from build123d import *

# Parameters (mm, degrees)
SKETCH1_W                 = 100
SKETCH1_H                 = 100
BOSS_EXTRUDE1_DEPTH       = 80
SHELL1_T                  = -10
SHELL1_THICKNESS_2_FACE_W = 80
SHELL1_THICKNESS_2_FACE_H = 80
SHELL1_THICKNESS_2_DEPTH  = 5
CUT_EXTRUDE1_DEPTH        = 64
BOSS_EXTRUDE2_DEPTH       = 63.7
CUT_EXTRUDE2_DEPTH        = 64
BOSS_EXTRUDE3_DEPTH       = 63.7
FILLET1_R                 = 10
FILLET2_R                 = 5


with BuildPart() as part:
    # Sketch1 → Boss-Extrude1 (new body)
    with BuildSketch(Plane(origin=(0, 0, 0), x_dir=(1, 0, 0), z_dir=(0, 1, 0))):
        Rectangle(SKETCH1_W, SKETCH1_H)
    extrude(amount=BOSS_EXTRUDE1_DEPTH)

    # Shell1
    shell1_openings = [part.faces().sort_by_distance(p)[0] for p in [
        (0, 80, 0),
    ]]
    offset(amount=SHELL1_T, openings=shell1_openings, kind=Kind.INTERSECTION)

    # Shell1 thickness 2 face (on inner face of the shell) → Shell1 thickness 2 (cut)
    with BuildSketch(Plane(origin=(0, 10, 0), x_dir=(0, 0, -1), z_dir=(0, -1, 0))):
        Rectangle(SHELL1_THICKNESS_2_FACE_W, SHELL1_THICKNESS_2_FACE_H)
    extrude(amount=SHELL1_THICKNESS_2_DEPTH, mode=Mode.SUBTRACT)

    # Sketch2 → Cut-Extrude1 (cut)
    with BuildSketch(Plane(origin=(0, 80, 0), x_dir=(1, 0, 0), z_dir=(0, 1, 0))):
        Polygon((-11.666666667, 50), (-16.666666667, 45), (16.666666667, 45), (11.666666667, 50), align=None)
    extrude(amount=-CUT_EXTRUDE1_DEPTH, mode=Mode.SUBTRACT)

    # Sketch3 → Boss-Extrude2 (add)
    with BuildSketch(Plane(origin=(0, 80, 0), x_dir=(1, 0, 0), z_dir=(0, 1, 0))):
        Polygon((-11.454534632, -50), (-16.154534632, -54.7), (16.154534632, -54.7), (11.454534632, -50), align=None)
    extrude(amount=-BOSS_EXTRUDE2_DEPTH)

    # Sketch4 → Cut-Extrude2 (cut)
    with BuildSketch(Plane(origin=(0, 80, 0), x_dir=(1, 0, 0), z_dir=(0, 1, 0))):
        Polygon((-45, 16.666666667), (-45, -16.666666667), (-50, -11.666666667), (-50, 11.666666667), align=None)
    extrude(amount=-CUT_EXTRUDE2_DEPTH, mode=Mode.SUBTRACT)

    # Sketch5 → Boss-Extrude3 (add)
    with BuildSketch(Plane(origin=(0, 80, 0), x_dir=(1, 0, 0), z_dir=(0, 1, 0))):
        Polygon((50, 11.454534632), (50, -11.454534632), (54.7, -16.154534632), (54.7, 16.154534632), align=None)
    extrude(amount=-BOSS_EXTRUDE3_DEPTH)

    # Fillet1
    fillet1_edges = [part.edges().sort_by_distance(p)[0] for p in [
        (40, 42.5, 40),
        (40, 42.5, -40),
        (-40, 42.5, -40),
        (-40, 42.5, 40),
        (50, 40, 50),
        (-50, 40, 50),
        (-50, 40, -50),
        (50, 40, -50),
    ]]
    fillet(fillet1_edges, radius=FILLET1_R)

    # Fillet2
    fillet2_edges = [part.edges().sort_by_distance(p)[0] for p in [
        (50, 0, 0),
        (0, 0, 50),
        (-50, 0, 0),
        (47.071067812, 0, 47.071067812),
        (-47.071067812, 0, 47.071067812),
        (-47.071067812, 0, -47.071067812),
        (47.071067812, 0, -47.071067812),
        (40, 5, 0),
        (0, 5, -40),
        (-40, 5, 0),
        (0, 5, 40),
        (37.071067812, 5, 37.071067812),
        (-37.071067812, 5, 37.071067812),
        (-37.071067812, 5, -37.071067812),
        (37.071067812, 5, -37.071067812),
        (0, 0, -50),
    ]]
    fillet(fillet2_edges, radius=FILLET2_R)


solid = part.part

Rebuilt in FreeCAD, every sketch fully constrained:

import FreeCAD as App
import Part
import Sketcher
Q = App.Units.Quantity


def edges_at(feature, points):
    """Names of the edges that pass closest to the given points."""
    edges = feature.Shape.Edges
    near = lambda p: min(range(len(edges)), key=lambda i: edges[i].distToShape(Part.Vertex(*p))[0])
    return sorted({f"Edge{near(p) + 1}" for p in points})


def faces_at(feature, points):
    """Names of the faces that lie closest to the given points."""
    faces = feature.Shape.Faces
    near = lambda p: min(range(len(faces)), key=lambda i: faces[i].distToShape(Part.Vertex(*p))[0])
    return sorted({f"Face{near(p) + 1}" for p in points})

doc = App.newDocument("Part")
body = doc.addObject("PartDesign::Body", "Body")

# Sketch on XZ plane
sketch1 = body.newObject("Sketcher::SketchObject", "Sketch")
sketch1.AttachmentSupport = (doc.getObject("XZ_Plane"), [""])
sketch1.MapMode = "FlatFace"
sketch1.addGeometry(Part.LineSegment(App.Vector(-50, -50, 0), App.Vector(-50, 50, 0)), False)
sketch1.addGeometry(Part.LineSegment(App.Vector(-50, 50, 0), App.Vector(50, 50, 0)), False)
sketch1.addGeometry(Part.LineSegment(App.Vector(50, 50, 0), App.Vector(50, -50, 0)), False)
sketch1.addGeometry(Part.LineSegment(App.Vector(50, -50, 0), App.Vector(-50, -50, 0)), False)
sketch1.addConstraint(Sketcher.Constraint("Coincident", 0, 2, 1, 1))
sketch1.addConstraint(Sketcher.Constraint("Coincident", 1, 2, 2, 1))
sketch1.addConstraint(Sketcher.Constraint("Coincident", 2, 2, 3, 1))
sketch1.addConstraint(Sketcher.Constraint("Coincident", 3, 2, 0, 1))
sketch1.addConstraint(Sketcher.Constraint("Vertical", 0))
sketch1.addConstraint(Sketcher.Constraint("Horizontal", 1))
sketch1.addConstraint(Sketcher.Constraint("Vertical", 2))
sketch1.addConstraint(Sketcher.Constraint("Horizontal", 3))
sketch1.addConstraint(Sketcher.Constraint("Symmetric", 0, 2, 2, 2, -1, 1))
sketch1.addConstraint(Sketcher.Constraint("Equal", 3, 0))
sketch1.addConstraint(Sketcher.Constraint("DistanceX", 1, 1, 1, 2, Q("100 mm")))
pad1 = body.newObject("PartDesign::Pad", "Pad")
pad1.Profile = sketch1
pad1.Length = 80
pad1.Reversed = True
doc.recompute()

thickness = body.newObject("PartDesign::Thickness", "Thickness")
thickness.Base = (pad1, faces_at(pad1, [(0, 80, 0)]))
thickness.Value = 10
thickness.Reversed = True
thickness.Join = "Intersection"

# Sketch on XZ plane
sketch2 = body.newObject("Sketcher::SketchObject", "Sketch001")
sketch2.AttachmentSupport = (doc.getObject("XZ_Plane"), [""])
sketch2.MapMode = "FlatFace"
sketch2.AttachmentOffset = App.Placement(App.Vector(0, 0, -10), App.Rotation())
sketch2.addGeometry(Part.LineSegment(App.Vector(40, 40, 0), App.Vector(-40, 40, 0)), False)
sketch2.addGeometry(Part.LineSegment(App.Vector(-40, 40, 0), App.Vector(-40, -40, 0)), False)
sketch2.addGeometry(Part.LineSegment(App.Vector(-40, -40, 0), App.Vector(40, -40, 0)), False)
sketch2.addGeometry(Part.LineSegment(App.Vector(40, -40, 0), App.Vector(40, 40, 0)), False)
sketch2.addConstraint(Sketcher.Constraint("Coincident", 0, 2, 1, 1))
sketch2.addConstraint(Sketcher.Constraint("Coincident", 1, 2, 2, 1))
sketch2.addConstraint(Sketcher.Constraint("Coincident", 2, 2, 3, 1))
sketch2.addConstraint(Sketcher.Constraint("Coincident", 3, 2, 0, 1))
sketch2.addConstraint(Sketcher.Constraint("Horizontal", 0))
sketch2.addConstraint(Sketcher.Constraint("Vertical", 1))
sketch2.addConstraint(Sketcher.Constraint("Horizontal", 2))
sketch2.addConstraint(Sketcher.Constraint("Vertical", 3))
sketch2.addConstraint(Sketcher.Constraint("Symmetric", 0, 2, 2, 2, -1, 1))
sketch2.addConstraint(Sketcher.Constraint("Equal", 2, 1))
sketch2.addConstraint(Sketcher.Constraint("DistanceX", 0, 2, 0, 1, Q("80 mm")))
pocket1 = body.newObject("PartDesign::Pocket", "Pocket")
pocket1.Profile = sketch2
pocket1.Length = 5
pocket1.Reversed = True

# Sketch on XZ plane
sketch3 = body.newObject("Sketcher::SketchObject", "Sketch002")
sketch3.AttachmentSupport = (doc.getObject("XZ_Plane"), [""])
sketch3.MapMode = "FlatFace"
sketch3.AttachmentOffset = App.Placement(App.Vector(0, 0, -80), App.Rotation())
sketch3.addGeometry(Part.LineSegment(App.Vector(-12, -50, 0), App.Vector(-17, -45, 0)), False)
sketch3.addGeometry(Part.LineSegment(App.Vector(-17, -45, 0), App.Vector(17, -45, 0)), False)
sketch3.addGeometry(Part.LineSegment(App.Vector(17, -45, 0), App.Vector(12, -50, 0)), False)
sketch3.addGeometry(Part.LineSegment(App.Vector(12, -50, 0), App.Vector(-12, -50, 0)), False)
sketch3.addConstraint(Sketcher.Constraint("Coincident", 0, 2, 1, 1))
sketch3.addConstraint(Sketcher.Constraint("Coincident", 1, 2, 2, 1))
sketch3.addConstraint(Sketcher.Constraint("Coincident", 2, 2, 3, 1))
sketch3.addConstraint(Sketcher.Constraint("Coincident", 3, 2, 0, 1))
sketch3.addConstraint(Sketcher.Constraint("Horizontal", 1))
sketch3.addConstraint(Sketcher.Constraint("Horizontal", 3))
sketch3.addConstraint(Sketcher.Constraint("Perpendicular", 0, 2))
sketch3.addConstraint(Sketcher.Constraint("Equal", 0, 2))
sketch3.addConstraint(Sketcher.Constraint("DistanceY", 0, 2, -1, 1, Q("45 mm")))
sketch3.addConstraint(Sketcher.Constraint("DistanceY", 2, 2, -1, 1, Q("50 mm")))
sketch3.addConstraint(Sketcher.Constraint("DistanceX", 1, 1, 1, 2, Q("33.333333 mm")))
sketch3.addConstraint(Sketcher.Constraint("DistanceX", 0, 2, -1, 1, Q("16.666667 mm")))
pocket2 = body.newObject("PartDesign::Pocket", "Pocket001")
pocket2.Profile = sketch3
pocket2.Length = 64
pocket2.Reversed = True

# Sketch on XZ plane
sketch4 = body.newObject("Sketcher::SketchObject", "Sketch003")
sketch4.AttachmentSupport = (doc.getObject("XZ_Plane"), [""])
sketch4.MapMode = "FlatFace"
sketch4.AttachmentOffset = App.Placement(App.Vector(0, 0, -80), App.Rotation())
sketch4.addGeometry(Part.LineSegment(App.Vector(-11, 50, 0), App.Vector(-16, 55, 0)), False)
sketch4.addGeometry(Part.LineSegment(App.Vector(-16, 55, 0), App.Vector(16, 55, 0)), False)
sketch4.addGeometry(Part.LineSegment(App.Vector(16, 55, 0), App.Vector(11, 50, 0)), False)
sketch4.addGeometry(Part.LineSegment(App.Vector(11, 50, 0), App.Vector(-11, 50, 0)), False)
sketch4.addConstraint(Sketcher.Constraint("Coincident", 0, 2, 1, 1))
sketch4.addConstraint(Sketcher.Constraint("Coincident", 1, 2, 2, 1))
sketch4.addConstraint(Sketcher.Constraint("Coincident", 2, 2, 3, 1))
sketch4.addConstraint(Sketcher.Constraint("Coincident", 3, 2, 0, 1))
sketch4.addConstraint(Sketcher.Constraint("Horizontal", 1))
sketch4.addConstraint(Sketcher.Constraint("Horizontal", 3))
sketch4.addConstraint(Sketcher.Constraint("Perpendicular", 0, 2))
sketch4.addConstraint(Sketcher.Constraint("Equal", 0, 2))
sketch4.addConstraint(Sketcher.Constraint("DistanceY", -1, 1, 2, 2, Q("50 mm")))
sketch4.addConstraint(Sketcher.Constraint("DistanceY", -1, 1, 0, 2, Q("54.7 mm")))
sketch4.addConstraint(Sketcher.Constraint("DistanceX", 1, 1, 1, 2, Q("32.309069 mm")))
sketch4.addConstraint(Sketcher.Constraint("DistanceX", 0, 2, -1, 1, Q("16.154535 mm")))
pad2 = body.newObject("PartDesign::Pad", "Pad001")
pad2.Profile = sketch4
pad2.Length = 63.7

# Sketch on XZ plane
sketch5 = body.newObject("Sketcher::SketchObject", "Sketch004")
sketch5.AttachmentSupport = (doc.getObject("XZ_Plane"), [""])
sketch5.MapMode = "FlatFace"
sketch5.AttachmentOffset = App.Placement(App.Vector(0, 0, -80), App.Rotation())
sketch5.addGeometry(Part.LineSegment(App.Vector(-45, 17, 0), App.Vector(-45, -17, 0)), False)
sketch5.addGeometry(Part.LineSegment(App.Vector(-45, -17, 0), App.Vector(-50, -12, 0)), False)
sketch5.addGeometry(Part.LineSegment(App.Vector(-50, -12, 0), App.Vector(-50, 12, 0)), False)
sketch5.addGeometry(Part.LineSegment(App.Vector(-50, 12, 0), App.Vector(-45, 17, 0)), False)
sketch5.addConstraint(Sketcher.Constraint("Coincident", 0, 2, 1, 1))
sketch5.addConstraint(Sketcher.Constraint("Coincident", 1, 2, 2, 1))
sketch5.addConstraint(Sketcher.Constraint("Coincident", 2, 2, 3, 1))
sketch5.addConstraint(Sketcher.Constraint("Coincident", 3, 2, 0, 1))
sketch5.addConstraint(Sketcher.Constraint("Vertical", 0))
sketch5.addConstraint(Sketcher.Constraint("Vertical", 2))
sketch5.addConstraint(Sketcher.Constraint("Perpendicular", 1, 3))
sketch5.addConstraint(Sketcher.Constraint("Equal", 1, 3))
sketch5.addConstraint(Sketcher.Constraint("DistanceX", 0, 2, -1, 1, Q("45 mm")))
sketch5.addConstraint(Sketcher.Constraint("DistanceX", 1, 2, -1, 1, Q("50 mm")))
sketch5.addConstraint(Sketcher.Constraint("DistanceY", 0, 2, 0, 1, Q("33.333333 mm")))
sketch5.addConstraint(Sketcher.Constraint("DistanceY", 0, 2, -1, 1, Q("16.666667 mm")))
pocket3 = body.newObject("PartDesign::Pocket", "Pocket002")
pocket3.Profile = sketch5
pocket3.Length = 64
pocket3.Reversed = True

# Sketch on XZ plane
sketch6 = body.newObject("Sketcher::SketchObject", "Sketch005")
sketch6.AttachmentSupport = (doc.getObject("XZ_Plane"), [""])
sketch6.MapMode = "FlatFace"
sketch6.AttachmentOffset = App.Placement(App.Vector(0, 0, -80), App.Rotation())
sketch6.addGeometry(Part.LineSegment(App.Vector(50, -11, 0), App.Vector(50, 11, 0)), False)
sketch6.addGeometry(Part.LineSegment(App.Vector(50, 11, 0), App.Vector(55, 16, 0)), False)
sketch6.addGeometry(Part.LineSegment(App.Vector(55, 16, 0), App.Vector(55, -16, 0)), False)
sketch6.addGeometry(Part.LineSegment(App.Vector(55, -16, 0), App.Vector(50, -11, 0)), False)
sketch6.addConstraint(Sketcher.Constraint("Coincident", 0, 2, 1, 1))
sketch6.addConstraint(Sketcher.Constraint("Coincident", 1, 2, 2, 1))
sketch6.addConstraint(Sketcher.Constraint("Coincident", 2, 2, 3, 1))
sketch6.addConstraint(Sketcher.Constraint("Coincident", 3, 2, 0, 1))
sketch6.addConstraint(Sketcher.Constraint("Vertical", 0))
sketch6.addConstraint(Sketcher.Constraint("Vertical", 2))
sketch6.addConstraint(Sketcher.Constraint("Perpendicular", 1, 3))
sketch6.addConstraint(Sketcher.Constraint("Equal", 1, 3))
sketch6.addConstraint(Sketcher.Constraint("DistanceX", -1, 1, 0, 2, Q("50 mm")))
sketch6.addConstraint(Sketcher.Constraint("DistanceX", -1, 1, 1, 2, Q("54.7 mm")))
sketch6.addConstraint(Sketcher.Constraint("DistanceY", 0, 1, 0, 2, Q("22.909069 mm")))
sketch6.addConstraint(Sketcher.Constraint("DistanceY", -1, 1, 0, 2, Q("11.454535 mm")))
pad3 = body.newObject("PartDesign::Pad", "Pad002")
pad3.Profile = sketch6
pad3.Length = 63.7
doc.recompute()

fillet = body.newObject("PartDesign::Fillet", "Fillet")
fillet.Base = (pad3, edges_at(pad3, [
    (40, 42.5, 40),
    (40, 42.5, -40),
    (-40, 42.5, -40),
    (-40, 42.5, 40),
    (50, 40, 50),
    (-50, 40, 50),
    (-50, 40, -50),
    (50, 40, -50),
]))
fillet.Radius = 10
doc.recompute()

fillet2 = body.newObject("PartDesign::Fillet", "Fillet001")
fillet2.Base = (fillet, edges_at(fillet, [
    (50, 0, 0),
    (0, 0, 50),
    (-50, 0, 0),
    (47.071, 0, 47.071),
    (-47.071, 0, 47.071),
    (-47.071, 0, -47.071),
    (47.071, 0, -47.071),
    (40, 5, 0),
    (0, 5, -40),
    (-40, 5, 0),
    (0, 5, 40),
    (37.071, 5, 37.071),
    (-37.071, 5, 37.071),
    (-37.071, 5, -37.071),
    (37.071, 5, -37.071),
    (0, 0, -50),
]))
fillet2.Radius = 5

doc.recompute()
